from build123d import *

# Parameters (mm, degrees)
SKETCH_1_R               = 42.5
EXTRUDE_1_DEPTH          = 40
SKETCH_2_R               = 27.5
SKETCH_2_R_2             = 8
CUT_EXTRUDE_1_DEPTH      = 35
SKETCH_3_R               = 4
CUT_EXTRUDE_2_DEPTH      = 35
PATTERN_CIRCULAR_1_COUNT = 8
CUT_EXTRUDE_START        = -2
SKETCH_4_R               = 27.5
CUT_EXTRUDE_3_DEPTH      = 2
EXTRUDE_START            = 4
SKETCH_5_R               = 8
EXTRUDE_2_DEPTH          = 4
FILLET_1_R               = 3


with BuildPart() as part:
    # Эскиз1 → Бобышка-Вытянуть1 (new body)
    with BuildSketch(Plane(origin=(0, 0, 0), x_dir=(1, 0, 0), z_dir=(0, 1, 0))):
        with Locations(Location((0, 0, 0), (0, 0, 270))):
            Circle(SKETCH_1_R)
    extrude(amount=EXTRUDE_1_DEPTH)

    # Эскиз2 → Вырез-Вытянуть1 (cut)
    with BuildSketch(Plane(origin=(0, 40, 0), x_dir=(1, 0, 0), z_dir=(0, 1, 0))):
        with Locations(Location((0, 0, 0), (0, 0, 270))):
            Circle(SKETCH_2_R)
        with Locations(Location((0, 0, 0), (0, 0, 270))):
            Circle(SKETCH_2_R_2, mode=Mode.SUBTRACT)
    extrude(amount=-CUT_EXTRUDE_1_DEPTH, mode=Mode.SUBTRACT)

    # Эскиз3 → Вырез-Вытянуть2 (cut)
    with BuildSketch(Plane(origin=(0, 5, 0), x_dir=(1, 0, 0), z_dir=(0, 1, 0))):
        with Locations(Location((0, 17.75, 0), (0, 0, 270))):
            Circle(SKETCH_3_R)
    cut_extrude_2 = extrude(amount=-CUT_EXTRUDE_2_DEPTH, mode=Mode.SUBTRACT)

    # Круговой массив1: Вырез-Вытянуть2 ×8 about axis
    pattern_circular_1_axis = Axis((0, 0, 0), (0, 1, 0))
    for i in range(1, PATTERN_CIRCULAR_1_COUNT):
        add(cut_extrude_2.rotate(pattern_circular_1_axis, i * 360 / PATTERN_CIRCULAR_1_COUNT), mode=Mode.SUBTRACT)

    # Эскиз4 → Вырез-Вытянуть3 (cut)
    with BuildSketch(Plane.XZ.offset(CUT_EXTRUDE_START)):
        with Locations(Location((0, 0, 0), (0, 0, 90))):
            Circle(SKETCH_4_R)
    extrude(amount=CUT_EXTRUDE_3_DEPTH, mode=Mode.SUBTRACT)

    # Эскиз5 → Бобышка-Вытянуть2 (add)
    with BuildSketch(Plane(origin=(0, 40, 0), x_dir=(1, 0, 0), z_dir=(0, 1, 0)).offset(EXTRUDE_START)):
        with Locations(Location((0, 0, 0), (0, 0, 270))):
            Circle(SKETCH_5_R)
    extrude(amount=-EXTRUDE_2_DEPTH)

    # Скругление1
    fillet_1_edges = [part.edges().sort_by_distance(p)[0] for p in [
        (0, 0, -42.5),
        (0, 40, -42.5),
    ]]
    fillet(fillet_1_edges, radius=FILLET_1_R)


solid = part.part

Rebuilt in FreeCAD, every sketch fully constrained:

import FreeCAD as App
import Part
import Sketcher

V = App.Vector


def edges_at(feature, points):
    """Names of the edges that pass closest to the given points."""
    edges = feature.Shape.Edges
    near = lambda p: min(range(len(edges)), key=lambda i: edges[i].distToShape(Part.Vertex(*p))[0])
    return sorted({f"Edge{near(p) + 1}" for p in points})

doc = App.newDocument("Part")
body = doc.addObject("PartDesign::Body", "Body")

sketch1 = doc.addObject("Sketcher::SketchObject", "Sketch")
body.addObject(sketch1)
sketch1.AttachmentSupport = (doc.XZ_Plane, [""])
sketch1.MapMode = "FlatFace"
sketch1.addGeometry(Part.Circle(V(0, 0, 0), V(0, 0, 1), 42), False)
sketch1.addConstraint(Sketcher.Constraint("Coincident", 0, 3, -1, 1))
sketch1.addConstraint(Sketcher.Constraint("Diameter", 0, 85.0))
pad1 = doc.addObject("PartDesign::Pad", "Pad")
body.addObject(pad1)
pad1.Profile = sketch1
pad1.Length = 40
pad1.Reversed = True

sketch2 = doc.addObject("Sketcher::SketchObject", "Sketch001")
body.addObject(sketch2)
sketch2.AttachmentSupport = (doc.XZ_Plane, [""])
sketch2.MapMode = "FlatFace"
sketch2.AttachmentOffset = App.Placement(V(0, 0, -40), App.Rotation())
sketch2.addGeometry(Part.Circle(V(0, 0, 0), V(0, 0, 1), 28), False)
sketch2.addGeometry(Part.Circle(V(0, 0, 0), V(0, 0, 1), 8), False)
sketch2.addConstraint(Sketcher.Constraint("Coincident", 0, 3, -1, 1))
sketch2.addConstraint(Sketcher.Constraint("Coincident", 1, 3, -1, 1))
sketch2.addConstraint(Sketcher.Constraint("Diameter", 0, 55.0))
sketch2.addConstraint(Sketcher.Constraint("Diameter", 1, 16.0))
pocket1 = doc.addObject("PartDesign::Pocket", "Pocket")
body.addObject(pocket1)
pocket1.Profile = sketch2
pocket1.Length = 35
pocket1.Reversed = True

sketch3 = doc.addObject("Sketcher::SketchObject", "Sketch002")
body.addObject(sketch3)
sketch3.AttachmentSupport = (doc.XZ_Plane, [""])
sketch3.MapMode = "FlatFace"
sketch3.AttachmentOffset = App.Placement(V(0, 0, -5), App.Rotation())
sketch3.addGeometry(Part.Circle(V(0, -17.8, 0), V(0, 0, 1), 4), False)
sketch3.addConstraint(Sketcher.Constraint("PointOnObject", 0, 3, -2))
sketch3.addConstraint(Sketcher.Constraint("Diameter", 0, 8.0))
sketch3.addConstraint(Sketcher.Constraint("DistanceY", 0, 3, -1, 1, 17.75))
pocket2 = doc.addObject("PartDesign::Pocket", "Pocket001")
body.addObject(pocket2)
pocket2.Profile = sketch3
pocket2.Length = 35
pocket2.Reversed = True
doc.recompute()

polarpattern = doc.addObject("PartDesign::PolarPattern", "PolarPattern")
body.addObject(polarpattern)
polarpattern.Originals = [pocket2]
polarpattern.Axis = (doc.Y_Axis, [""])
polarpattern.Angle = 360
polarpattern.Occurrences = 8
body.Tip = polarpattern

sketch4 = doc.addObject("Sketcher::SketchObject", "Sketch003")
body.addObject(sketch4)
sketch4.AttachmentSupport = (doc.XZ_Plane, [""])
sketch4.MapMode = "FlatFace"
sketch4.AttachmentOffset = App.Placement(V(0, 0, -2), App.Rotation())
sketch4.addGeometry(Part.Circle(V(0, 0, 0), V(0, 0, 1), 28), False)
sketch4.addConstraint(Sketcher.Constraint("Coincident", 0, 3, -1, 1))
sketch4.addConstraint(Sketcher.Constraint("Diameter", 0, 55.0))
pocket3 = doc.addObject("PartDesign::Pocket", "Pocket002")
body.addObject(pocket3)
pocket3.Profile = sketch4
pocket3.Length = 2
pocket3.Reversed = True

sketch5 = doc.addObject("Sketcher::SketchObject", "Sketch004")
body.addObject(sketch5)
sketch5.AttachmentSupport = (doc.XZ_Plane, [""])
sketch5.MapMode = "FlatFace"
sketch5.AttachmentOffset = App.Placement(V(0, 0, -44), App.Rotation())
sketch5.addGeometry(Part.Circle(V(0, 0, 0), V(0, 0, 1), 8), False)
sketch5.addConstraint(Sketcher.Constraint("Coincident", 0, 3, -1, 1))
sketch5.addConstraint(Sketcher.Constraint("Diameter", 0, 16.0))
pad2 = doc.addObject("PartDesign::Pad", "Pad001")
body.addObject(pad2)
pad2.Profile = sketch5
pad2.Length = 4
doc.recompute()

fillet = doc.addObject("PartDesign::Fillet", "Fillet")
body.addObject(fillet)
fillet.Base = (pad2, edges_at(pad2, [(0, 0, -42.5), (0, 40, -42.5)]))
fillet.Radius = 3

doc.recompute()
